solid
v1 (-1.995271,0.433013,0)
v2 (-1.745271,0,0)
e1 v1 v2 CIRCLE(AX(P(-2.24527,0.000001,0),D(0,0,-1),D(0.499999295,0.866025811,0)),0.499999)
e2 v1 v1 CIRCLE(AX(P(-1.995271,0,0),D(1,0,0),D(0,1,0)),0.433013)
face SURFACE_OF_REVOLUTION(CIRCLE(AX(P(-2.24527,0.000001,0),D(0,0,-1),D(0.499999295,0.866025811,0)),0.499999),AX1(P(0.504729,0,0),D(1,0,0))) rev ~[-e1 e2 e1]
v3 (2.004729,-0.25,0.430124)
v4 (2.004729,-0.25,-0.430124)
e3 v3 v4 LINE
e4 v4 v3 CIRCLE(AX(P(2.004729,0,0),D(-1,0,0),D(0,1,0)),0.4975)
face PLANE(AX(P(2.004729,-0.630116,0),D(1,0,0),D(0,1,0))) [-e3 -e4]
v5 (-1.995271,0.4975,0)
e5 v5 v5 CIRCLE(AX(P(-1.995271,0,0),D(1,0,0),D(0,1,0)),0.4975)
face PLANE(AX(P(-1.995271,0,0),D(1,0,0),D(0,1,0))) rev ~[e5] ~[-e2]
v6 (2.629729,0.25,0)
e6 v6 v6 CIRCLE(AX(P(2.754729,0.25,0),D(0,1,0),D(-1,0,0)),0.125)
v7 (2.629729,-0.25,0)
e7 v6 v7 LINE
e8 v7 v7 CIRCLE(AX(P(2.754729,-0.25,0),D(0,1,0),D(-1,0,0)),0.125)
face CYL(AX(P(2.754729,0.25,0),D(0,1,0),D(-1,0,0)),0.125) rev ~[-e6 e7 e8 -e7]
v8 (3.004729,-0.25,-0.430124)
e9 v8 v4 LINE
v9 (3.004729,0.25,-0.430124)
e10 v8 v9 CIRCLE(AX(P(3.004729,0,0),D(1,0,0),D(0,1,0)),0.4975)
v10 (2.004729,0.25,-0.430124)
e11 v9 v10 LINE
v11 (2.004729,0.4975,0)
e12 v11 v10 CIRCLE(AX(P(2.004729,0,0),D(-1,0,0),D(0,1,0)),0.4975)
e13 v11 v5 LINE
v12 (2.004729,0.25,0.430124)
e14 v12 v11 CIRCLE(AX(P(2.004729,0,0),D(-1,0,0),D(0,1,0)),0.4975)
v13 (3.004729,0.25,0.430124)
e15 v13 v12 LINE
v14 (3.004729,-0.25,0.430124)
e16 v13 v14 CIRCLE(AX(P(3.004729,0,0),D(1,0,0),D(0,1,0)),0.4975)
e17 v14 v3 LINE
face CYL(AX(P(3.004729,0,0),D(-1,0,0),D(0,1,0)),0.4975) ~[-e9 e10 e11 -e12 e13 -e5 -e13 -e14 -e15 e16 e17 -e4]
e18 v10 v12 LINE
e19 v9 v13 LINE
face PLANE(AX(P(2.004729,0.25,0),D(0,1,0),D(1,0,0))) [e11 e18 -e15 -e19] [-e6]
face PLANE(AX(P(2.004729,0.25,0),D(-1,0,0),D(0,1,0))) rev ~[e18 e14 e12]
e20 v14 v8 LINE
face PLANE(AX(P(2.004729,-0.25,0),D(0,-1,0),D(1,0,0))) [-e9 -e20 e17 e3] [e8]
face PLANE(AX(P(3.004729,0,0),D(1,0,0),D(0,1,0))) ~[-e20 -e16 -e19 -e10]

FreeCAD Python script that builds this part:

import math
import FreeCAD as App
import Part
import Sketcher
from FreeCAD import Vector
Q = App.Units.Quantity


def add_polygon(sketch, points):
    """Adds a closed chain of lines whose ends are joined by coincident constraints."""
    first, n = sketch.GeometryCount, len(points)
    for a, b in zip(points, points[1:] + points[:1]):
        sketch.addGeometry(Part.LineSegment(App.Vector(*a, 0), App.Vector(*b, 0)), False)
    for i in range(n):
        sketch.addConstraint(Sketcher.Constraint("Coincident", first + i, 2, first + (i + 1) % n, 1))

doc = App.newDocument("Part")
params = doc.addObject("Spreadsheet::Sheet", "Params")
for row, (alias, value) in enumerate([
    ("sketch1_radius", "0.499999 mm"),
    ("sketch1_width", "5 mm"),
    ("sketch1_width2", "4.75 mm"),
    ("revolution_angle", "360 deg"),
    ("sketch2_width", "1 mm"),
    ("pocket1_length", "25 mm"),
    ("sketch3_diameter", "0.25 mm"),
    ("pocket2_length", "25 mm"),
], start=1):
    params.set(f"A{row}", alias)
    params.set(f"B{row}", "=" + value)
    params.setAlias(f"B{row}", alias)

body = doc.addObject("PartDesign::Body", "Body")

# Sketch on XY plane
sketch1 = body.newObject("Sketcher::SketchObject", "Sketch")
sketch1.AttachmentSupport = (doc.getObject("XY_Plane"), [""])
sketch1.MapMode = "FlatFace"
sketch1.addGeometry([
    Part.ArcOfCircle(Part.Circle(Vector(-2.25, 0, 0), Vector(0, 0, 1), 0.5), math.radians(0), math.radians(60)),  # 0
    Part.LineSegment(Vector(-1.75, 0, 0), Vector(3, 0, 0)),  # 1
    Part.LineSegment(Vector(3, 0, 0), Vector(3, 0.5, 0)),  # 2
    Part.LineSegment(Vector(3, 0.5, 0), Vector(-2, 0.5, 0)),  # 3
    Part.LineSegment(Vector(-2, 0.5, 0), Vector(-2, 0.43, 0)),  # 4
], False)
sketch1.addConstraint([
    Sketcher.Constraint("Coincident", 0, 1, 1, 1),
    Sketcher.Constraint("Coincident", 1, 2, 2, 1),
    Sketcher.Constraint("Coincident", 2, 2, 3, 1),
    Sketcher.Constraint("Coincident", 3, 2, 4, 1),
    Sketcher.Constraint("Coincident", 4, 2, 0, 2),
    Sketcher.Constraint("Horizontal", 1),
    Sketcher.Constraint("Vertical", 2),
    Sketcher.Constraint("Horizontal", 3),
    Sketcher.Constraint("Vertical", 4),
    Sketcher.Constraint("PointOnObject", 0, 3, -1),
    Sketcher.Constraint("PointOnObject", 0, 1, -1),
    Sketcher.Constraint("Radius", 0, Q("0.499999 mm")),
    Sketcher.Constraint("DistanceX", 3, 2, 3, 1, Q("5 mm")),
    Sketcher.Constraint("DistanceX", 1, 1, 1, 2, Q("4.75 mm")),
    Sketcher.Constraint("DistanceY", 2, 1, 2, 2, Q("0.4975 mm")),
    Sketcher.Constraint("DistanceX", 0, 3, -1, 1, Q("2.24527 mm")),
])
sketch1.setExpression("Constraints[11]", "Params.sketch1_radius")
sketch1.setExpression("Constraints[12]", "Params.sketch1_width")
sketch1.setExpression("Constraints[13]", "Params.sketch1_width2")
revolution = body.newObject("PartDesign::Revolution", "Revolution")
revolution.Profile = sketch1
revolution.ReferenceAxis = (sketch1, ["H_Axis"])
revolution.setExpression("Angle", "Params.revolution_angle")

# Sketch on XY plane
sketch2 = body.newObject("Sketcher::SketchObject", "Sketch001")
sketch2.AttachmentSupport = (doc.getObject("XY_Plane"), [""])
sketch2.MapMode = "FlatFace"
add_polygon(sketch2, [(2, 0.63), (2, 0.25), (3, 0.25), (3, 0.63)])  # lines 0-3
add_polygon(sketch2, [(2, -0.25), (2, -0.63), (3, -0.63), (3, -0.25)])  # lines 4-7
sketch2.addConstraint([
    Sketcher.Constraint("Vertical", 0),
    Sketcher.Constraint("Horizontal", 1),
    Sketcher.Constraint("Vertical", 2),
    Sketcher.Constraint("Horizontal", 3),
    Sketcher.Constraint("Vertical", 4),
    Sketcher.Constraint("Horizontal", 5),
    Sketcher.Constraint("Vertical", 6),
    Sketcher.Constraint("Horizontal", 7),
    Sketcher.Constraint("Symmetric", 3, 2, 4, 2, -1),
    Sketcher.Constraint("Symmetric", 1, 2, 6, 2, -1),
    Sketcher.Constraint("DistanceX", 1, 1, 1, 2, Q("1 mm")),
    Sketcher.Constraint("DistanceY", 6, 2, 1, 2, Q("0.499999 mm")),
    Sketcher.Constraint("DistanceY", 0, 2, 0, 1, Q("0.380117 mm")),
    Sketcher.Constraint("DistanceX", -1, 1, 0, 2, Q("2.004729 mm")),
])
sketch2.setExpression("Constraints[18]", "Params.sketch2_width")
pocket1 = body.newObject("PartDesign::Pocket", "Pocket")
pocket1.Profile = sketch2
pocket1.setExpression("Length", "Params.pocket1_length")
pocket1.Midplane = True

# Sketch on XZ plane
sketch3 = body.newObject("Sketcher::SketchObject", "Sketch002")
sketch3.AttachmentSupport = (doc.getObject("XZ_Plane"), [""])
sketch3.MapMode = "FlatFace"
sketch3.AttachmentOffset = App.Placement(Vector(0, 0, -0.25), App.Rotation())
sketch3.addGeometry(Part.Circle(Vector(2.75, 0, 0), Vector(0, 0, 1), 0.12), False)
sketch3.addConstraint([
    Sketcher.Constraint("PointOnObject", 0, 3, -1),
    Sketcher.Constraint("Diameter", 0, Q("0.25 mm")),
    Sketcher.Constraint("DistanceX", -1, 1, 0, 3, Q("2.754729 mm")),
])
sketch3.setExpression("Constraints[1]", "Params.sketch3_diameter")
pocket2 = body.newObject("PartDesign::Pocket", "Pocket001")
pocket2.Profile = sketch3
pocket2.setExpression("Length", "Params.pocket2_length")
pocket2.Reversed = True

doc.recompute()
